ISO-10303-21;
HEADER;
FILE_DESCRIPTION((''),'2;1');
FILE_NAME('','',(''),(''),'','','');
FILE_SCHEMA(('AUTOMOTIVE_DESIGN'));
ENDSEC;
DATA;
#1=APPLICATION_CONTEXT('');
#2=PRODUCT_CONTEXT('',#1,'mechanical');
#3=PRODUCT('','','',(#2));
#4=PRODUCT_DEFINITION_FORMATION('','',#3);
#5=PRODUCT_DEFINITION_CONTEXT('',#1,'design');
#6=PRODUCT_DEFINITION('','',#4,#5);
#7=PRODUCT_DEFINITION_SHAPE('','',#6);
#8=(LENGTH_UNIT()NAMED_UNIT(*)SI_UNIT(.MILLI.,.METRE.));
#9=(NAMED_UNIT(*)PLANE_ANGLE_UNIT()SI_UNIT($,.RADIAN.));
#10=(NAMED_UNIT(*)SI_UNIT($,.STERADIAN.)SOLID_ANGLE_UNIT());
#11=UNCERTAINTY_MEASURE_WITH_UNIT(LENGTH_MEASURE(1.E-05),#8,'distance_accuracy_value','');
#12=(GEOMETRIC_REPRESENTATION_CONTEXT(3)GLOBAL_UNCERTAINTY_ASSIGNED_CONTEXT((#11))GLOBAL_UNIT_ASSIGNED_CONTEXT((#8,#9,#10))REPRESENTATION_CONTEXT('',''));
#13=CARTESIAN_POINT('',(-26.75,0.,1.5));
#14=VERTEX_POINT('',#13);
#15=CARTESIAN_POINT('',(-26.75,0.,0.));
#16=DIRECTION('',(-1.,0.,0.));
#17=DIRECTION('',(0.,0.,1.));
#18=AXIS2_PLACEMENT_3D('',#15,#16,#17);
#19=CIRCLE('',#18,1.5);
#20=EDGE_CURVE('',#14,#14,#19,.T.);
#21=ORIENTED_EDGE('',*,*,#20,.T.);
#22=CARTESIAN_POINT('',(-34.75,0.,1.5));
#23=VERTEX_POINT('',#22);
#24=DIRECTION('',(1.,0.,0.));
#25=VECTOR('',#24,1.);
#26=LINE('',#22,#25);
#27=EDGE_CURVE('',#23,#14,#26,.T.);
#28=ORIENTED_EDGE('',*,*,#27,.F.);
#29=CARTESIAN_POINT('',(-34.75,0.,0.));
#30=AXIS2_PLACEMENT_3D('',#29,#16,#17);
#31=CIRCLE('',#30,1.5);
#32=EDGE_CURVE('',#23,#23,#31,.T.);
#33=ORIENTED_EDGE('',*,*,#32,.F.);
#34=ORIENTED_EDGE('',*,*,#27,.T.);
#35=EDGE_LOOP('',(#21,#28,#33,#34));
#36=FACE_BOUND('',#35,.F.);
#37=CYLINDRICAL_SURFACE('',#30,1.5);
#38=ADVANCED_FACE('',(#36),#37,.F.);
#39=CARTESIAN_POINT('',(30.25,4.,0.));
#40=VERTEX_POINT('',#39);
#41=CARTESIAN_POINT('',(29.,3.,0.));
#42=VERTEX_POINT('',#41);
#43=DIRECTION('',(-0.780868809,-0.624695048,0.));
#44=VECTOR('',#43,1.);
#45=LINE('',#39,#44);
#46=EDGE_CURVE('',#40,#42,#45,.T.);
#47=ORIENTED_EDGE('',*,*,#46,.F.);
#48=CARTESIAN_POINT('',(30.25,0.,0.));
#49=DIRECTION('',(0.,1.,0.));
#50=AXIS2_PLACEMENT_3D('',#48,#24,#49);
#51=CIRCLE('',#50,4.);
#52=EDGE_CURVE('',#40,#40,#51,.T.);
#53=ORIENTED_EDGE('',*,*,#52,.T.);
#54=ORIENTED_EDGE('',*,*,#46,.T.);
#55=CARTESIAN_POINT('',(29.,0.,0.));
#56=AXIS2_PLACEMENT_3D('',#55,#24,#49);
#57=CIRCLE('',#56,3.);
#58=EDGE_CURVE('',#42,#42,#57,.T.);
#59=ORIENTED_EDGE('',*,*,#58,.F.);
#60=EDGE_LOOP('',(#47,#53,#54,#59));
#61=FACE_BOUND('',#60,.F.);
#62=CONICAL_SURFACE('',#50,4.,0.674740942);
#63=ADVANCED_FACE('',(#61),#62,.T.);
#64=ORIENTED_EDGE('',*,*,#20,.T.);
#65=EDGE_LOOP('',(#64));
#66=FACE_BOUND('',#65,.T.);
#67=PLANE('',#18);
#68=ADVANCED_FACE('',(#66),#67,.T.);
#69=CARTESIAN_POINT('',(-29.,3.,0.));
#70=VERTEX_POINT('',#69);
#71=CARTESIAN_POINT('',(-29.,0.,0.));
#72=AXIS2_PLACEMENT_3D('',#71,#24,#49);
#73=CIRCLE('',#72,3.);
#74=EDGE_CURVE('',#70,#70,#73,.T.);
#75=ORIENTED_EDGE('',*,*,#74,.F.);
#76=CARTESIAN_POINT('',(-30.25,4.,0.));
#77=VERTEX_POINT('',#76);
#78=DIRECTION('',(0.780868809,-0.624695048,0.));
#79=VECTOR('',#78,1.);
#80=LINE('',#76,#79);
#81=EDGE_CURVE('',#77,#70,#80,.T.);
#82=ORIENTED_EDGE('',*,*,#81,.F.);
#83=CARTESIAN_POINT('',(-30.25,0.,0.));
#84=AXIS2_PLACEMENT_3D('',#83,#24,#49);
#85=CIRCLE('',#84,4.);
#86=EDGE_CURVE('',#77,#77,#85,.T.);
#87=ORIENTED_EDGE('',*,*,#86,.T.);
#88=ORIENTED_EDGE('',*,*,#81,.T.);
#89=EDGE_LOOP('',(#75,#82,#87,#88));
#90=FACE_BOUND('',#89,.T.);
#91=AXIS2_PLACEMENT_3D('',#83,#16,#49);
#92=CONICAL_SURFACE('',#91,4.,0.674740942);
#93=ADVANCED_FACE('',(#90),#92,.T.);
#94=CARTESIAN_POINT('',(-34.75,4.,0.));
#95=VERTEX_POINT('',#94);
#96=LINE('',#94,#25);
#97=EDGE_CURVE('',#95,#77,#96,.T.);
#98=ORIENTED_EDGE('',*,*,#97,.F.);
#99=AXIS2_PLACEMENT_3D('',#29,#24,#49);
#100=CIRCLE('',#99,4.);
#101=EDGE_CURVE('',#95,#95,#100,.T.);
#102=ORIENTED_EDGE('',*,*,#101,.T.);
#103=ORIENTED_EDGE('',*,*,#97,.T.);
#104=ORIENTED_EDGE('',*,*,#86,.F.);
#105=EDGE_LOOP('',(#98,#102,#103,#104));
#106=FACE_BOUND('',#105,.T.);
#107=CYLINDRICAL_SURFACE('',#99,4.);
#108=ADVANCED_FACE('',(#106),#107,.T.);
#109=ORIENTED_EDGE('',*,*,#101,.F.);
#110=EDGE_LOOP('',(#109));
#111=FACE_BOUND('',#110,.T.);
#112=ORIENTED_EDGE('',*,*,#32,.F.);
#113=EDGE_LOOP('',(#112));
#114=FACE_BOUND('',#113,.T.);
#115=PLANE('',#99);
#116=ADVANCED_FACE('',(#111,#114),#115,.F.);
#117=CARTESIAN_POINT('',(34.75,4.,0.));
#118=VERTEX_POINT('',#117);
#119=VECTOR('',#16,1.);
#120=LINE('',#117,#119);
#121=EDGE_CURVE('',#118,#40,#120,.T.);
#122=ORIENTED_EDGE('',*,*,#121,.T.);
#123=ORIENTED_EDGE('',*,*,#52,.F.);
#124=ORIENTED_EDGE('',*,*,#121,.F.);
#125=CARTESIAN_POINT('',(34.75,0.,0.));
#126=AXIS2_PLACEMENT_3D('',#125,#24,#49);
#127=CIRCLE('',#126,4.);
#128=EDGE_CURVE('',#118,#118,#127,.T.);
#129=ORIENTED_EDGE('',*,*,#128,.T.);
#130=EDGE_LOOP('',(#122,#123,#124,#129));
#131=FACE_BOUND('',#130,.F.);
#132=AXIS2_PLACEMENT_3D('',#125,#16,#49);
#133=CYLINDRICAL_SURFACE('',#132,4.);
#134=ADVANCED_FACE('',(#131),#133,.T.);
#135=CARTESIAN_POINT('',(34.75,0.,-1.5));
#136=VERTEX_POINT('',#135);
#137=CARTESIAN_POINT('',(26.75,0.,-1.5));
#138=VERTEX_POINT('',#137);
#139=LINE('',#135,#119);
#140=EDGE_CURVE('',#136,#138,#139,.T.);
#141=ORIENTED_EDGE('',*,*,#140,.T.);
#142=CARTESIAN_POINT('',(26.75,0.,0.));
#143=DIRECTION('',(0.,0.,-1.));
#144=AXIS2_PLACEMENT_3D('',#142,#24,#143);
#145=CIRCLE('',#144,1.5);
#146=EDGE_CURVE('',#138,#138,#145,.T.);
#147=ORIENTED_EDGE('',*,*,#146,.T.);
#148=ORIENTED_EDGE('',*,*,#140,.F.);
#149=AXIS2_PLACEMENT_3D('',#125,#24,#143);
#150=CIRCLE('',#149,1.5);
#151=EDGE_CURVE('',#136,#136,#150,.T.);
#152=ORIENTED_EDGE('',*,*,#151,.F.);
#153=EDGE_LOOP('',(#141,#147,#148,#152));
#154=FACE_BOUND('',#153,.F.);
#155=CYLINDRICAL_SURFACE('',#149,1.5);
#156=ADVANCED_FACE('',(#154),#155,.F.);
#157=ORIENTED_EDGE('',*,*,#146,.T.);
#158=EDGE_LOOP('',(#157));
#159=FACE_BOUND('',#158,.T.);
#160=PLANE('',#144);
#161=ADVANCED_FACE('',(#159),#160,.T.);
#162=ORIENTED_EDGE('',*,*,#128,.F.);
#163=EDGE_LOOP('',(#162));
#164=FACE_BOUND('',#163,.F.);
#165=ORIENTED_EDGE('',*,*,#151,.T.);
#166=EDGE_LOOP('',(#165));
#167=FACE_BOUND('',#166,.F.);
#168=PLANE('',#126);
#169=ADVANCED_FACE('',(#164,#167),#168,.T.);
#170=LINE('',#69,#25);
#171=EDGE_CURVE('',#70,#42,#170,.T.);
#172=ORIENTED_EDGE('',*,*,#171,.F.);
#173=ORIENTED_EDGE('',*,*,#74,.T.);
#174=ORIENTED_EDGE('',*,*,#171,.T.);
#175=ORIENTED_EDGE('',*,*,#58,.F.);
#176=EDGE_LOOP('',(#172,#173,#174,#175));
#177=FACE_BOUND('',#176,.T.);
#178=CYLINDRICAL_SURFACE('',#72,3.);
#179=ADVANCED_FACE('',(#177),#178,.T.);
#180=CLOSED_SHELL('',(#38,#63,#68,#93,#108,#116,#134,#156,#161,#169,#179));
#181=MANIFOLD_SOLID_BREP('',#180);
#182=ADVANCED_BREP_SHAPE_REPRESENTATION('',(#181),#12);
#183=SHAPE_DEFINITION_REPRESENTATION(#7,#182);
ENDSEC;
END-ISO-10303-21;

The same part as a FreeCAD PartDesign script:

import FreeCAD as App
import Part
import Sketcher
from FreeCAD import Vector
Q = App.Units.Quantity


def add_polygon(sketch, points):
    """Adds a closed chain of lines whose ends are joined by coincident constraints."""
    first, n = sketch.GeometryCount, len(points)
    for a, b in zip(points, points[1:] + points[:1]):
        sketch.addGeometry(Part.LineSegment(App.Vector(*a, 0), App.Vector(*b, 0)), False)
    for i in range(n):
        sketch.addConstraint(Sketcher.Constraint("Coincident", first + i, 2, first + (i + 1) % n, 1))

doc = App.newDocument("Part")
body = doc.addObject("PartDesign::Body", "Body")

# Sketch on XY plane
sketch1 = body.newObject("Sketcher::SketchObject", "Sketch")
sketch1.AttachmentSupport = (doc.getObject("XY_Plane"), [""])
sketch1.MapMode = "FlatFace"
add_polygon(sketch1, [(-34.75, 4), (-34.75, 0), (34.75, 0), (34.75, 4), (30.25, 4), (29, 3), (-29, 3), (-30.25, 4)])  # lines 0-7
sketch1.addConstraint([
    Sketcher.Constraint("Vertical", 0),
    Sketcher.Constraint("Horizontal", 1),
    Sketcher.Constraint("Vertical", 2),
    Sketcher.Constraint("Horizontal", 3),
    Sketcher.Constraint("Horizontal", 5),
    Sketcher.Constraint("Horizontal", 7),
    Sketcher.Constraint("Symmetric", 0, 2, 1, 2, -1, 1),
    Sketcher.Constraint("Symmetric", 3, 2, 6, 2, -2),
    Sketcher.Constraint("Equal", 4, 6),
    Sketcher.Constraint("DistanceX", 5, 2, 5, 1, Q("58 mm")),
    Sketcher.Constraint("DistanceY", 0, 2, 0, 1, Q("4 mm")),
    Sketcher.Constraint("DistanceX", 1, 1, 1, 2, Q("69.5 mm")),
    Sketcher.Constraint("DistanceX", 3, 2, 3, 1, Q("4.5 mm")),
    Sketcher.Constraint("DistanceY", -1, 1, 4, 2, Q("3 mm")),
])
revolution = body.newObject("PartDesign::Revolution", "Revolution")
revolution.Profile = sketch1
revolution.ReferenceAxis = (sketch1, ["H_Axis"])
revolution.Angle = 360

# Sketch on YZ plane
sketch2 = body.newObject("Sketcher::SketchObject", "Sketch001")
sketch2.AttachmentSupport = (doc.getObject("YZ_Plane"), [""])
sketch2.MapMode = "FlatFace"
sketch2.AttachmentOffset = App.Placement(Vector(0, 0, 34.75), App.Rotation())
sketch2.addGeometry(Part.Circle(Vector(0, 0, 0), Vector(0, 0, 1), 1.5), False)
sketch2.addConstraint([
    Sketcher.Constraint("Coincident", 0, 3, -1, 1),
    Sketcher.Constraint("Diameter", 0, Q("3 mm")),
])
pocket1 = body.newObject("PartDesign::Pocket", "Pocket")
pocket1.Profile = sketch2
pocket1.Length = 8

# Sketch on YZ plane
sketch3 = body.newObject("Sketcher::SketchObject", "Sketch002")
sketch3.AttachmentSupport = (doc.getObject("YZ_Plane"), [""])
sketch3.MapMode = "FlatFace"
sketch3.AttachmentOffset = App.Placement(Vector(0, 0, -34.75), App.Rotation())
sketch3.addGeometry(Part.Circle(Vector(0, 0, 0), Vector(0, 0, 1), 1.5), False)
sketch3.addConstraint([
    Sketcher.Constraint("Coincident", 0, 3, -1, 1),
    Sketcher.Constraint("Diameter", 0, Q("3 mm")),
])
pocket2 = body.newObject("PartDesign::Pocket", "Pocket001")
pocket2.Profile = sketch3
pocket2.Length = 8
pocket2.Reversed = True

doc.recompute()
